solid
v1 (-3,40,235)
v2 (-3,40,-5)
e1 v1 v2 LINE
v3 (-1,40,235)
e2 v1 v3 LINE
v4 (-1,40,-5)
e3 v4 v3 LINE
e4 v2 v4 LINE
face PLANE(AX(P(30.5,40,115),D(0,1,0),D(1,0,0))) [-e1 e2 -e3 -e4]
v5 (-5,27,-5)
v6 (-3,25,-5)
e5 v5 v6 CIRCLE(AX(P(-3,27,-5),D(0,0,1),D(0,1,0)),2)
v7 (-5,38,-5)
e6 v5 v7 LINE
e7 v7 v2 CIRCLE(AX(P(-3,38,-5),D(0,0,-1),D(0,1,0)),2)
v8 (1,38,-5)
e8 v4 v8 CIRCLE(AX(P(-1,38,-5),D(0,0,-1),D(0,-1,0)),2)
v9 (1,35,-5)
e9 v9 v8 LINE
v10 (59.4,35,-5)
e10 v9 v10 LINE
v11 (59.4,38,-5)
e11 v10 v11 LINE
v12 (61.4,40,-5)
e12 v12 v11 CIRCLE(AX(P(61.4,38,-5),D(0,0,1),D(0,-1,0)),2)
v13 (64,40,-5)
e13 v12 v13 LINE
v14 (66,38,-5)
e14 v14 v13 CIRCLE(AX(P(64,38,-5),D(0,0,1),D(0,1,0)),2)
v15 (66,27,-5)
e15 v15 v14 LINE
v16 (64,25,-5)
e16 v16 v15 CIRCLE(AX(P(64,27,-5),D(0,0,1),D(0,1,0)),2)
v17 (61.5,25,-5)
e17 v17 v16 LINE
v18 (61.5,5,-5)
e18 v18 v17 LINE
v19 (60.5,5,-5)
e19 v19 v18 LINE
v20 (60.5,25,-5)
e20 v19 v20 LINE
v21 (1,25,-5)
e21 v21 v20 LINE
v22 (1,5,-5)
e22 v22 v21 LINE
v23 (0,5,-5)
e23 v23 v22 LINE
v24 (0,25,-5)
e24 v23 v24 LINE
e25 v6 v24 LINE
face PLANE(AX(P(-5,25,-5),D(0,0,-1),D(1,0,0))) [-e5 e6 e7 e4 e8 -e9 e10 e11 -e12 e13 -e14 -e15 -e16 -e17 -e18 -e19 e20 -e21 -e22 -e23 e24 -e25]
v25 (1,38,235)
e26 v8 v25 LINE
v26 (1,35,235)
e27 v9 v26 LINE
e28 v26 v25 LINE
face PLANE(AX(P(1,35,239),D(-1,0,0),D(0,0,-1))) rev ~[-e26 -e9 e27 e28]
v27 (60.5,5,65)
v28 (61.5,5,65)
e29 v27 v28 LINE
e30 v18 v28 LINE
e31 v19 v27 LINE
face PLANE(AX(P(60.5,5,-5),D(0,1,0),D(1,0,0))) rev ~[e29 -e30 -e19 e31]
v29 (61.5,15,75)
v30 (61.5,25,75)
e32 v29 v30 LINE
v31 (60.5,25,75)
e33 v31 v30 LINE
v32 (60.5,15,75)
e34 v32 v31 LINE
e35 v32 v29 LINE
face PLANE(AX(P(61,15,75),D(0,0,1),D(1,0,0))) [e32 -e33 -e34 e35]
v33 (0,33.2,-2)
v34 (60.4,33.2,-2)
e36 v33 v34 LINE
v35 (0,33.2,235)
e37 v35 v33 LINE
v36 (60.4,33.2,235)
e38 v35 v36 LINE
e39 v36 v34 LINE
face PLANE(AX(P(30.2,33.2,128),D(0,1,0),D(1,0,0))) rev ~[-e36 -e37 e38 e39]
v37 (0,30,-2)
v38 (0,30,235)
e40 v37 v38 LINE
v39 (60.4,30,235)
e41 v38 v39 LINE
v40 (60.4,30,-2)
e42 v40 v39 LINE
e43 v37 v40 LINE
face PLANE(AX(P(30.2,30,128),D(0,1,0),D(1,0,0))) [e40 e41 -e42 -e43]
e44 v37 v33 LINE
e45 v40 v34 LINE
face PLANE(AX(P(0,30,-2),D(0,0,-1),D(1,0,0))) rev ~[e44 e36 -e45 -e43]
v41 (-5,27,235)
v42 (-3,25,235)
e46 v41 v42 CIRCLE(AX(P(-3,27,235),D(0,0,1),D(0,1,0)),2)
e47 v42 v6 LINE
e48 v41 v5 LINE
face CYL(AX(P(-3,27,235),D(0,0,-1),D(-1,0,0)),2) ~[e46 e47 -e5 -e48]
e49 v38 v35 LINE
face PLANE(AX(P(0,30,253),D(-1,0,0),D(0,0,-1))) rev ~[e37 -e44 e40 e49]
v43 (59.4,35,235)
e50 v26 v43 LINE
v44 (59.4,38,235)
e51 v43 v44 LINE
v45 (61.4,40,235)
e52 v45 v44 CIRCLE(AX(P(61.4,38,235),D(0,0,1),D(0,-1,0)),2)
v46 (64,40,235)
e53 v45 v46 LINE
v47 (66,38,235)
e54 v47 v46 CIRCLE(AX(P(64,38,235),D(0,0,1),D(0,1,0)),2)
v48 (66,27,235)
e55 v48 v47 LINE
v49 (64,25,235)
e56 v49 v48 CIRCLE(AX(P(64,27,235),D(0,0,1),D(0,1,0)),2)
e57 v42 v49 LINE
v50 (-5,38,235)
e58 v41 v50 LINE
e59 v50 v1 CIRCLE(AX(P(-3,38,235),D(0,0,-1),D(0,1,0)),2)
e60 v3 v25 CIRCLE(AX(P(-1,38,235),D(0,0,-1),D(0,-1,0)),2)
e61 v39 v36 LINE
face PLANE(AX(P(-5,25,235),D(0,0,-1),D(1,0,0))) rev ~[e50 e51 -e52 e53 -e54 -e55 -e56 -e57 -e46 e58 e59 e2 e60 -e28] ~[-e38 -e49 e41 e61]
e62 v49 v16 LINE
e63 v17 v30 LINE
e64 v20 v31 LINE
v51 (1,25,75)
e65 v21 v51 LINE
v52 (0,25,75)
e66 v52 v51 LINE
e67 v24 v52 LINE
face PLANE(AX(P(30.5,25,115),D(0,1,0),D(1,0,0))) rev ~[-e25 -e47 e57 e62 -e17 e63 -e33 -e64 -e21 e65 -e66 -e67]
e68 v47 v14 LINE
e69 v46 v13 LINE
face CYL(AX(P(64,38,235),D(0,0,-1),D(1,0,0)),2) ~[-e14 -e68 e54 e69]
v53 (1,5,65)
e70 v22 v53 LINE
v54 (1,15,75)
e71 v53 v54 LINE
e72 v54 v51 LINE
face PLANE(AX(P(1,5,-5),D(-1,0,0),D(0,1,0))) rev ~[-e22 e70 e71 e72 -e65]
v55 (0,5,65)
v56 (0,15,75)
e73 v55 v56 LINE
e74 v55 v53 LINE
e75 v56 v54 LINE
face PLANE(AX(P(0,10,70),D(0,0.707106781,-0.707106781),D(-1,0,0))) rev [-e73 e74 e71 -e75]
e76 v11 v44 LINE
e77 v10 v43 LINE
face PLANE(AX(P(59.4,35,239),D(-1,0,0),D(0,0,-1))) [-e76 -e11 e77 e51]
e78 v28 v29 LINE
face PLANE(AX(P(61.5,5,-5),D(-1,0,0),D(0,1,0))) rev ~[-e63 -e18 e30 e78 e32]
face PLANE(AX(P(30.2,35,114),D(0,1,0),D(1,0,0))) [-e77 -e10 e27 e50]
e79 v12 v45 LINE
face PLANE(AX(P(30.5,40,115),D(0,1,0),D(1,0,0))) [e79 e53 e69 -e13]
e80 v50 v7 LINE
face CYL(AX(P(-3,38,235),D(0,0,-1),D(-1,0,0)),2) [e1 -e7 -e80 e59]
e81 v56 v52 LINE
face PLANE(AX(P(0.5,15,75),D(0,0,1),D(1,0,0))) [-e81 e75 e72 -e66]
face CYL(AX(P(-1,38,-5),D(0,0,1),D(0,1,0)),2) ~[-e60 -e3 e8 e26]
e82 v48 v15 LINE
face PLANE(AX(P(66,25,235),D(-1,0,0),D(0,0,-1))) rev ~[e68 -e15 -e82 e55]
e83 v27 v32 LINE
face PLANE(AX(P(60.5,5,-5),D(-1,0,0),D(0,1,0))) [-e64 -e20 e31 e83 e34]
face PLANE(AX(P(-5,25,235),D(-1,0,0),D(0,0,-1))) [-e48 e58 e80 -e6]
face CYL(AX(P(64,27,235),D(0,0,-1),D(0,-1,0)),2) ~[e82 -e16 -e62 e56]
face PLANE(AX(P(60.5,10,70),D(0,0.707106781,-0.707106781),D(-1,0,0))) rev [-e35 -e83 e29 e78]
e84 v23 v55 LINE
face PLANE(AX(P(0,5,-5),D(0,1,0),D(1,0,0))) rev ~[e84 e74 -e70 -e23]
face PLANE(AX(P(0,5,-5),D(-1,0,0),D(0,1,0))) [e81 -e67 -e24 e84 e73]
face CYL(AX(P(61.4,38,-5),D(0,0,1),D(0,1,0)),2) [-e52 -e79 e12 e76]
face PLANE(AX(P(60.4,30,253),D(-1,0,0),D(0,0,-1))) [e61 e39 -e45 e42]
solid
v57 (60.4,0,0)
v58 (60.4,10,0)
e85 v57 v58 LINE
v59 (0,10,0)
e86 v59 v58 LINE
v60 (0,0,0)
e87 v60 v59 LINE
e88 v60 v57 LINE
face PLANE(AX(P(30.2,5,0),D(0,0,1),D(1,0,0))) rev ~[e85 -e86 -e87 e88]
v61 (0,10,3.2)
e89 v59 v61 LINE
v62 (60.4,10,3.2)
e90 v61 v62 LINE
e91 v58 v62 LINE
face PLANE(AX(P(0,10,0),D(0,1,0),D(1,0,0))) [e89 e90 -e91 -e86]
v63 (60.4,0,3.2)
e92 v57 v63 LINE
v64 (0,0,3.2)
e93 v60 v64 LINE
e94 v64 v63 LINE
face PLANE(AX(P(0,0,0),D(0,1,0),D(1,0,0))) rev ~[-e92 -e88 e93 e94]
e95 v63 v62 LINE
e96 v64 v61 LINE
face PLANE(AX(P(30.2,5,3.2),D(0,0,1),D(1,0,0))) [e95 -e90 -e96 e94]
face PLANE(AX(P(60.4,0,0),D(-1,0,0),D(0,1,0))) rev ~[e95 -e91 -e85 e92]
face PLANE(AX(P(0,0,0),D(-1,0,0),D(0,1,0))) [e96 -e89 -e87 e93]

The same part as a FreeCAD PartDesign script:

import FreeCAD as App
import Part
import Sketcher

V = App.Vector


def edges_at(feature, points):
    """Names of the edges that pass closest to the given points."""
    edges = feature.Shape.Edges
    near = lambda p: min(range(len(edges)), key=lambda i: edges[i].distToShape(Part.Vertex(*p))[0])
    return sorted({f"Edge{near(p) + 1}" for p in points})


def add_polygon(sketch, points):
    """Adds a closed chain of lines whose ends are joined by coincident constraints."""
    first, n = sketch.GeometryCount, len(points)
    for a, b in zip(points, points[1:] + points[:1]):
        sketch.addGeometry(Part.LineSegment(App.Vector(*a, 0), App.Vector(*b, 0)), False)
    for i in range(n):
        sketch.addConstraint(Sketcher.Constraint("Coincident", first + i, 2, first + (i + 1) % n, 1))

doc = App.newDocument("Part")
body = doc.addObject("PartDesign::Body", "Body")

sketch1 = body.newObject("Sketcher::SketchObject", "Sketch")
sketch1.AttachmentSupport = (doc.getObject("XY_Plane"), [""])
sketch1.MapMode = "FlatFace"
add_polygon(sketch1, [(0, 10), (0, 0), (60, 0), (60, 10)])
sketch1.addConstraint(Sketcher.Constraint("Vertical", 0))
sketch1.addConstraint(Sketcher.Constraint("Horizontal", 1))
sketch1.addConstraint(Sketcher.Constraint("Vertical", 2))
sketch1.addConstraint(Sketcher.Constraint("Horizontal", 3))
sketch1.addConstraint(Sketcher.Constraint("Coincident", 0, 2, -1, 1))
sketch1.addConstraint(Sketcher.Constraint("DistanceY", 0, 2, 0, 1, 10.0))
sketch1.addConstraint(Sketcher.Constraint("DistanceX", 1, 1, 1, 2, 60.4))
pad1 = body.newObject("PartDesign::Pad", "Pad")
pad1.Profile = sketch1
pad1.Length = 3.2
body2 = doc.addObject("PartDesign::Body", "Body001")

sketch2 = body2.newObject("Sketcher::SketchObject", "Sketch001")
sketch2.AttachmentSupport = (doc.getObject("XY_Plane001"), [""])
sketch2.MapMode = "FlatFace"
add_polygon(sketch2, [(0, 250), (0, 0), (60, 0), (60, 250)])
sketch2.addConstraint(Sketcher.Constraint("Vertical", 0))
sketch2.addConstraint(Sketcher.Constraint("Horizontal", 1))
sketch2.addConstraint(Sketcher.Constraint("Vertical", 2))
sketch2.addConstraint(Sketcher.Constraint("Horizontal", 3))
sketch2.addConstraint(Sketcher.Constraint("Coincident", 0, 2, -1, 1))
sketch2.addConstraint(Sketcher.Constraint("DistanceY", 0, 2, 0, 1, 250.0))
sketch2.addConstraint(Sketcher.Constraint("DistanceX", 1, 1, 1, 2, 60.4))
pad2 = body2.newObject("PartDesign::Pad", "Pad001")
pad2.Profile = sketch2
pad2.Length = 3.2
body3 = doc.addObject("PartDesign::Body", "Body002")

sketch3 = body3.newObject("Sketcher::SketchObject", "Sketch002")
sketch3.AttachmentSupport = (doc.getObject("XY_Plane002"), [""])
sketch3.MapMode = "FlatFace"
add_polygon(sketch3, [(0, 245), (0, -5), (60, -5), (60, 245)])
sketch3.addConstraint(Sketcher.Constraint("Vertical", 0))
sketch3.addConstraint(Sketcher.Constraint("Horizontal", 1))
sketch3.addConstraint(Sketcher.Constraint("Vertical", 2))
sketch3.addConstraint(Sketcher.Constraint("Horizontal", 3))
sketch3.addConstraint(Sketcher.Constraint("PointOnObject", 0, 2, -2))
sketch3.addConstraint(Sketcher.Constraint("DistanceY", 0, 2, 0, 1, 250.0))
sketch3.addConstraint(Sketcher.Constraint("DistanceX", 1, 1, 1, 2, 60.4))
sketch3.addConstraint(Sketcher.Constraint("DistanceY", 0, 2, -1, 1, 5.0))
pad3 = body3.newObject("PartDesign::Pad", "Pad002")
pad3.Profile = sketch3
pad3.Length = 3.2
doc.recompute()

boolean = body3.newObject("PartDesign::Boolean", "Boolean")
boolean.Type = "Fuse"
boolean.addObjects([body2])
body4 = doc.addObject("PartDesign::Body", "Body003")
doc.recompute()

body3.Placement = App.Placement(V(0, -18, 0), App.Rotation(V(0, 0, 1), 0))
boolean2 = body4.newObject("PartDesign::Boolean", "Boolean001")
boolean2.Type = "Fuse"
boolean2.addObjects([body3])
body5 = doc.addObject("PartDesign::Body", "Body004")

sketch4 = body5.newObject("Sketcher::SketchObject", "Sketch003")
sketch4.AttachmentSupport = (doc.getObject("XY_Plane004"), [""])
sketch4.MapMode = "FlatFace"
add_polygon(sketch4, [(1, 257), (1, 7), (59, 7), (59, 257)])
sketch4.addConstraint(Sketcher.Constraint("Vertical", 0))
sketch4.addConstraint(Sketcher.Constraint("Horizontal", 1))
sketch4.addConstraint(Sketcher.Constraint("Vertical", 2))
sketch4.addConstraint(Sketcher.Constraint("Horizontal", 3))
sketch4.addConstraint(Sketcher.Constraint("DistanceY", 0, 2, 0, 1, 250.0))
sketch4.addConstraint(Sketcher.Constraint("DistanceX", 1, 1, 1, 2, 58.4))
sketch4.addConstraint(Sketcher.Constraint("DistanceX", -1, 1, 0, 2, 1.0))
sketch4.addConstraint(Sketcher.Constraint("DistanceY", -1, 1, 0, 2, 7.0))
pad4 = body5.newObject("PartDesign::Pad", "Pad003")
pad4.Profile = sketch4
pad4.Length = 13.2
body6 = doc.addObject("PartDesign::Body", "Body005")

sketch5 = body6.newObject("Sketcher::SketchObject", "Sketch004")
sketch5.AttachmentSupport = (doc.getObject("XY_Plane005"), [""])
sketch5.MapMode = "FlatFace"
add_polygon(sketch5, [(1, 241), (1, -9), (59, -9), (59, 241)])
sketch5.addConstraint(Sketcher.Constraint("Vertical", 0))
sketch5.addConstraint(Sketcher.Constraint("Horizontal", 1))
sketch5.addConstraint(Sketcher.Constraint("Vertical", 2))
sketch5.addConstraint(Sketcher.Constraint("Horizontal", 3))
sketch5.addConstraint(Sketcher.Constraint("DistanceY", 0, 2, 0, 1, 250.0))
sketch5.addConstraint(Sketcher.Constraint("DistanceX", 1, 1, 1, 2, 58.4))
sketch5.addConstraint(Sketcher.Constraint("DistanceX", -1, 1, 0, 2, 1.0))
sketch5.addConstraint(Sketcher.Constraint("DistanceY", 0, 2, -1, 1, 9.0))
pad5 = body6.newObject("PartDesign::Pad", "Pad004")
pad5.Profile = sketch5
pad5.Length = 13.2
doc.recompute()

boolean3 = body6.newObject("PartDesign::Boolean", "Boolean002")
boolean3.Type = "Fuse"
boolean3.addObjects([body5])
body7 = doc.addObject("PartDesign::Body", "Body006")
doc.recompute()

body6.Placement = App.Placement(V(0, 0, 5), App.Rotation(V(0, 0, 1), 0))
boolean4 = body7.newObject("PartDesign::Boolean", "Boolean003")
boolean4.Type = "Fuse"
boolean4.addObjects([body6])
body8 = doc.addObject("PartDesign::Body", "Body007")

sketch6 = body8.newObject("Sketcher::SketchObject", "Sketch005")
sketch6.AttachmentSupport = (doc.getObject("XY_Plane007"), [""])
sketch6.MapMode = "FlatFace"
sketch6.AttachmentOffset = App.Placement(V(0, 0, -5), App.Rotation())
add_polygon(sketch6, [(-5, 235), (-5, -5), (66, -5), (66, 235)])
sketch6.addConstraint(Sketcher.Constraint("Vertical", 0))
sketch6.addConstraint(Sketcher.Constraint("Horizontal", 1))
sketch6.addConstraint(Sketcher.Constraint("Vertical", 2))
sketch6.addConstraint(Sketcher.Constraint("Horizontal", 3))
sketch6.addConstraint(Sketcher.Constraint("DistanceX", 1, 1, 1, 2, 71.0))
sketch6.addConstraint(Sketcher.Constraint("DistanceY", 0, 2, 0, 1, 240.0))
sketch6.addConstraint(Sketcher.Constraint("DistanceX", 0, 2, -1, 1, 5.0))
sketch6.addConstraint(Sketcher.Constraint("DistanceY", 0, 2, -1, 1, 5.0))
pad6 = body8.newObject("PartDesign::Pad", "Pad005")
pad6.Profile = sketch6
pad6.Length = 15
doc.recompute()

boolean5 = body8.newObject("PartDesign::Boolean", "Boolean004")
boolean5.Type = "Cut"
boolean5.addObjects([body7])
doc.recompute()

boolean6 = body8.newObject("PartDesign::Boolean", "Boolean005")
boolean6.Type = "Cut"
boolean6.addObjects([body4])
body9 = doc.addObject("PartDesign::Body", "Body008")
doc.recompute()

body8.Placement = App.Placement(V(0, 30, 230), App.Rotation(V(1, 0, 0), 270))
boolean7 = body9.newObject("PartDesign::Boolean", "Boolean006")
boolean7.Type = "Fuse"
boolean7.addObjects([body8])
body10 = doc.addObject("PartDesign::Body", "Body009")

sketch7 = body10.newObject("Sketcher::SketchObject", "Sketch006")
sketch7.AttachmentSupport = (doc.getObject("XY_Plane009"), [""])
sketch7.MapMode = "FlatFace"
sketch7.AttachmentOffset = App.Placement(V(0, 0, -5), App.Rotation())
add_polygon(sketch7, [(0, 25), (0, 5), (1, 5), (1, 25)])
sketch7.addConstraint(Sketcher.Constraint("Vertical", 0))
sketch7.addConstraint(Sketcher.Constraint("Horizontal", 1))
sketch7.addConstraint(Sketcher.Constraint("Vertical", 2))
sketch7.addConstraint(Sketcher.Constraint("Horizontal", 3))
sketch7.addConstraint(Sketcher.Constraint("PointOnObject", 0, 2, -2))
sketch7.addConstraint(Sketcher.Constraint("DistanceX", 1, 1, 1, 2, 1.0))
sketch7.addConstraint(Sketcher.Constraint("DistanceY", 0, 2, 0, 1, 20.0))
sketch7.addConstraint(Sketcher.Constraint("DistanceY", -1, 1, 0, 2, 5.0))
pad7 = body10.newObject("PartDesign::Pad", "Pad006")
pad7.Profile = sketch7
pad7.Length = 80
body11 = doc.addObject("PartDesign::Body", "Body010")

sketch8 = body11.newObject("Sketcher::SketchObject", "Sketch007")
sketch8.AttachmentSupport = (doc.getObject("XY_Plane010"), [""])
sketch8.MapMode = "FlatFace"
sketch8.AttachmentOffset = App.Placement(V(0, 0, -5), App.Rotation())
add_polygon(sketch8, [(60.5, 25), (60.5, 5), (61.5, 5), (61.5, 25)])
sketch8.addConstraint(Sketcher.Constraint("Vertical", 0))
sketch8.addConstraint(Sketcher.Constraint("Horizontal", 1))
sketch8.addConstraint(Sketcher.Constraint("Vertical", 2))
sketch8.addConstraint(Sketcher.Constraint("Horizontal", 3))
sketch8.addConstraint(Sketcher.Constraint("DistanceX", 1, 1, 1, 2, 1.0))
sketch8.addConstraint(Sketcher.Constraint("DistanceY", 0, 2, 0, 1, 20.0))
sketch8.addConstraint(Sketcher.Constraint("DistanceY", -1, 1, 0, 2, 5.0))
sketch8.addConstraint(Sketcher.Constraint("DistanceX", -1, 1, 0, 2, 60.5))
pad8 = body11.newObject("PartDesign::Pad", "Pad007")
pad8.Profile = sketch8
pad8.Length = 80
doc.recompute()

boolean8 = body11.newObject("PartDesign::Boolean", "Boolean007")
boolean8.Type = "Fuse"
boolean8.addObjects([body9])
doc.recompute()

boolean9 = body11.newObject("PartDesign::Boolean", "Boolean008")
boolean9.Type = "Fuse"
boolean9.addObjects([body10])
doc.recompute()

fillet = body11.newObject("PartDesign::Fillet", "Fillet")
fillet.Base = (boolean9, edges_at(boolean9, [
    (-5, 40, 115),
    (-5, 25, 115),
    (1, 40, 115),
    (1, 40, 115),
    (66, 25, 115),
    (66, 40, 115),
    (59.4, 40, 115),
    (59.4, 40, 115),
]))
fillet.Radius = 2
doc.recompute()

chamfer = body11.newObject("PartDesign::Chamfer", "Chamfer")
chamfer.Base = (fillet, edges_at(fillet, [(0.5, 5, 75), (61, 5, 75)]))
chamfer.Size = 10

doc.recompute()
